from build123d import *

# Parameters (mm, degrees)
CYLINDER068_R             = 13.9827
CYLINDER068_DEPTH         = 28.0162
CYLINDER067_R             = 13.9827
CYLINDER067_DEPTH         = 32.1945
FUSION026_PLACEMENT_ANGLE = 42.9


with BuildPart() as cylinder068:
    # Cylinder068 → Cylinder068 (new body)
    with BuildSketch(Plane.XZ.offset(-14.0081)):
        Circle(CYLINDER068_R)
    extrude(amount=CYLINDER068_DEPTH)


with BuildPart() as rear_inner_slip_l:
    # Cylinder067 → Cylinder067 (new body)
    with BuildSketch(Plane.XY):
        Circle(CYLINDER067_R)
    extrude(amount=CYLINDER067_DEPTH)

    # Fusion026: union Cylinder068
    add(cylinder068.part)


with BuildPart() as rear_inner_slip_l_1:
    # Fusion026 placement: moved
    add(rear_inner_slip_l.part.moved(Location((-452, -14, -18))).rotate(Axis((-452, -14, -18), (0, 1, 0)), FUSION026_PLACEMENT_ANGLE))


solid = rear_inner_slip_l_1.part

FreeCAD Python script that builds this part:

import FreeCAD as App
import Part
import Sketcher
from FreeCAD import Vector
Q = App.Units.Quantity

doc = App.newDocument("Part")
body = doc.addObject("PartDesign::Body", "Body")

sketch1 = doc.addObject("Sketcher::SketchObject", "Sketch")
body.addObject(sketch1)
sketch1.AttachmentSupport = (doc.XZ_Plane, [""])
sketch1.MapMode = "FlatFace"
sketch1.AttachmentOffset = App.Placement(Vector(0, 0, -0.5515 * 25.4), App.Rotation())
sketch1.addGeometry(Part.Circle(Vector(0, 0, 0), Vector(0, 0, 1), 14), False)
sketch1.addConstraint(Sketcher.Constraint("Coincident", 0, 3, -1, 1))
sketch1.addConstraint(Sketcher.Constraint("Diameter", 0, Q("1.101 in")))
pad1 = doc.addObject("PartDesign::Pad", "Pad")
body.addObject(pad1)
pad1.Profile = sketch1
pad1.Length = Q("1.103 in")
body2 = doc.addObject("PartDesign::Body", "Body001")

sketch2 = doc.addObject("Sketcher::SketchObject", "Sketch001")
body2.addObject(sketch2)
sketch2.AttachmentSupport = (doc.getObject("XY_Plane001"), [""])
sketch2.MapMode = "FlatFace"
sketch2.addGeometry(Part.Circle(Vector(0, 0, 0), Vector(0, 0, 1), 14), False)
sketch2.addConstraint(Sketcher.Constraint("Coincident", 0, 3, -1, 1))
sketch2.addConstraint(Sketcher.Constraint("Diameter", 0, Q("1.101 in")))
pad2 = doc.addObject("PartDesign::Pad", "Pad001")
body2.addObject(pad2)
pad2.Profile = sketch2
pad2.Length = Q("1.2675 in")
doc.recompute()

boolean = doc.addObject("PartDesign::Boolean", "Boolean")
body2.addObject(boolean)
boolean.Type = "Fuse"
boolean.addObjects([body])
body3 = doc.addObject("PartDesign::Body", "Body002")
doc.recompute()

body2.Placement = App.Placement(Vector(-452, -14, -18), App.Rotation(Vector(0, 1, 0), 42.9))
boolean2 = doc.addObject("PartDesign::Boolean", "Boolean001")
body3.addObject(boolean2)
boolean2.Type = "Fuse"
boolean2.addObjects([body2])

doc.recompute()
